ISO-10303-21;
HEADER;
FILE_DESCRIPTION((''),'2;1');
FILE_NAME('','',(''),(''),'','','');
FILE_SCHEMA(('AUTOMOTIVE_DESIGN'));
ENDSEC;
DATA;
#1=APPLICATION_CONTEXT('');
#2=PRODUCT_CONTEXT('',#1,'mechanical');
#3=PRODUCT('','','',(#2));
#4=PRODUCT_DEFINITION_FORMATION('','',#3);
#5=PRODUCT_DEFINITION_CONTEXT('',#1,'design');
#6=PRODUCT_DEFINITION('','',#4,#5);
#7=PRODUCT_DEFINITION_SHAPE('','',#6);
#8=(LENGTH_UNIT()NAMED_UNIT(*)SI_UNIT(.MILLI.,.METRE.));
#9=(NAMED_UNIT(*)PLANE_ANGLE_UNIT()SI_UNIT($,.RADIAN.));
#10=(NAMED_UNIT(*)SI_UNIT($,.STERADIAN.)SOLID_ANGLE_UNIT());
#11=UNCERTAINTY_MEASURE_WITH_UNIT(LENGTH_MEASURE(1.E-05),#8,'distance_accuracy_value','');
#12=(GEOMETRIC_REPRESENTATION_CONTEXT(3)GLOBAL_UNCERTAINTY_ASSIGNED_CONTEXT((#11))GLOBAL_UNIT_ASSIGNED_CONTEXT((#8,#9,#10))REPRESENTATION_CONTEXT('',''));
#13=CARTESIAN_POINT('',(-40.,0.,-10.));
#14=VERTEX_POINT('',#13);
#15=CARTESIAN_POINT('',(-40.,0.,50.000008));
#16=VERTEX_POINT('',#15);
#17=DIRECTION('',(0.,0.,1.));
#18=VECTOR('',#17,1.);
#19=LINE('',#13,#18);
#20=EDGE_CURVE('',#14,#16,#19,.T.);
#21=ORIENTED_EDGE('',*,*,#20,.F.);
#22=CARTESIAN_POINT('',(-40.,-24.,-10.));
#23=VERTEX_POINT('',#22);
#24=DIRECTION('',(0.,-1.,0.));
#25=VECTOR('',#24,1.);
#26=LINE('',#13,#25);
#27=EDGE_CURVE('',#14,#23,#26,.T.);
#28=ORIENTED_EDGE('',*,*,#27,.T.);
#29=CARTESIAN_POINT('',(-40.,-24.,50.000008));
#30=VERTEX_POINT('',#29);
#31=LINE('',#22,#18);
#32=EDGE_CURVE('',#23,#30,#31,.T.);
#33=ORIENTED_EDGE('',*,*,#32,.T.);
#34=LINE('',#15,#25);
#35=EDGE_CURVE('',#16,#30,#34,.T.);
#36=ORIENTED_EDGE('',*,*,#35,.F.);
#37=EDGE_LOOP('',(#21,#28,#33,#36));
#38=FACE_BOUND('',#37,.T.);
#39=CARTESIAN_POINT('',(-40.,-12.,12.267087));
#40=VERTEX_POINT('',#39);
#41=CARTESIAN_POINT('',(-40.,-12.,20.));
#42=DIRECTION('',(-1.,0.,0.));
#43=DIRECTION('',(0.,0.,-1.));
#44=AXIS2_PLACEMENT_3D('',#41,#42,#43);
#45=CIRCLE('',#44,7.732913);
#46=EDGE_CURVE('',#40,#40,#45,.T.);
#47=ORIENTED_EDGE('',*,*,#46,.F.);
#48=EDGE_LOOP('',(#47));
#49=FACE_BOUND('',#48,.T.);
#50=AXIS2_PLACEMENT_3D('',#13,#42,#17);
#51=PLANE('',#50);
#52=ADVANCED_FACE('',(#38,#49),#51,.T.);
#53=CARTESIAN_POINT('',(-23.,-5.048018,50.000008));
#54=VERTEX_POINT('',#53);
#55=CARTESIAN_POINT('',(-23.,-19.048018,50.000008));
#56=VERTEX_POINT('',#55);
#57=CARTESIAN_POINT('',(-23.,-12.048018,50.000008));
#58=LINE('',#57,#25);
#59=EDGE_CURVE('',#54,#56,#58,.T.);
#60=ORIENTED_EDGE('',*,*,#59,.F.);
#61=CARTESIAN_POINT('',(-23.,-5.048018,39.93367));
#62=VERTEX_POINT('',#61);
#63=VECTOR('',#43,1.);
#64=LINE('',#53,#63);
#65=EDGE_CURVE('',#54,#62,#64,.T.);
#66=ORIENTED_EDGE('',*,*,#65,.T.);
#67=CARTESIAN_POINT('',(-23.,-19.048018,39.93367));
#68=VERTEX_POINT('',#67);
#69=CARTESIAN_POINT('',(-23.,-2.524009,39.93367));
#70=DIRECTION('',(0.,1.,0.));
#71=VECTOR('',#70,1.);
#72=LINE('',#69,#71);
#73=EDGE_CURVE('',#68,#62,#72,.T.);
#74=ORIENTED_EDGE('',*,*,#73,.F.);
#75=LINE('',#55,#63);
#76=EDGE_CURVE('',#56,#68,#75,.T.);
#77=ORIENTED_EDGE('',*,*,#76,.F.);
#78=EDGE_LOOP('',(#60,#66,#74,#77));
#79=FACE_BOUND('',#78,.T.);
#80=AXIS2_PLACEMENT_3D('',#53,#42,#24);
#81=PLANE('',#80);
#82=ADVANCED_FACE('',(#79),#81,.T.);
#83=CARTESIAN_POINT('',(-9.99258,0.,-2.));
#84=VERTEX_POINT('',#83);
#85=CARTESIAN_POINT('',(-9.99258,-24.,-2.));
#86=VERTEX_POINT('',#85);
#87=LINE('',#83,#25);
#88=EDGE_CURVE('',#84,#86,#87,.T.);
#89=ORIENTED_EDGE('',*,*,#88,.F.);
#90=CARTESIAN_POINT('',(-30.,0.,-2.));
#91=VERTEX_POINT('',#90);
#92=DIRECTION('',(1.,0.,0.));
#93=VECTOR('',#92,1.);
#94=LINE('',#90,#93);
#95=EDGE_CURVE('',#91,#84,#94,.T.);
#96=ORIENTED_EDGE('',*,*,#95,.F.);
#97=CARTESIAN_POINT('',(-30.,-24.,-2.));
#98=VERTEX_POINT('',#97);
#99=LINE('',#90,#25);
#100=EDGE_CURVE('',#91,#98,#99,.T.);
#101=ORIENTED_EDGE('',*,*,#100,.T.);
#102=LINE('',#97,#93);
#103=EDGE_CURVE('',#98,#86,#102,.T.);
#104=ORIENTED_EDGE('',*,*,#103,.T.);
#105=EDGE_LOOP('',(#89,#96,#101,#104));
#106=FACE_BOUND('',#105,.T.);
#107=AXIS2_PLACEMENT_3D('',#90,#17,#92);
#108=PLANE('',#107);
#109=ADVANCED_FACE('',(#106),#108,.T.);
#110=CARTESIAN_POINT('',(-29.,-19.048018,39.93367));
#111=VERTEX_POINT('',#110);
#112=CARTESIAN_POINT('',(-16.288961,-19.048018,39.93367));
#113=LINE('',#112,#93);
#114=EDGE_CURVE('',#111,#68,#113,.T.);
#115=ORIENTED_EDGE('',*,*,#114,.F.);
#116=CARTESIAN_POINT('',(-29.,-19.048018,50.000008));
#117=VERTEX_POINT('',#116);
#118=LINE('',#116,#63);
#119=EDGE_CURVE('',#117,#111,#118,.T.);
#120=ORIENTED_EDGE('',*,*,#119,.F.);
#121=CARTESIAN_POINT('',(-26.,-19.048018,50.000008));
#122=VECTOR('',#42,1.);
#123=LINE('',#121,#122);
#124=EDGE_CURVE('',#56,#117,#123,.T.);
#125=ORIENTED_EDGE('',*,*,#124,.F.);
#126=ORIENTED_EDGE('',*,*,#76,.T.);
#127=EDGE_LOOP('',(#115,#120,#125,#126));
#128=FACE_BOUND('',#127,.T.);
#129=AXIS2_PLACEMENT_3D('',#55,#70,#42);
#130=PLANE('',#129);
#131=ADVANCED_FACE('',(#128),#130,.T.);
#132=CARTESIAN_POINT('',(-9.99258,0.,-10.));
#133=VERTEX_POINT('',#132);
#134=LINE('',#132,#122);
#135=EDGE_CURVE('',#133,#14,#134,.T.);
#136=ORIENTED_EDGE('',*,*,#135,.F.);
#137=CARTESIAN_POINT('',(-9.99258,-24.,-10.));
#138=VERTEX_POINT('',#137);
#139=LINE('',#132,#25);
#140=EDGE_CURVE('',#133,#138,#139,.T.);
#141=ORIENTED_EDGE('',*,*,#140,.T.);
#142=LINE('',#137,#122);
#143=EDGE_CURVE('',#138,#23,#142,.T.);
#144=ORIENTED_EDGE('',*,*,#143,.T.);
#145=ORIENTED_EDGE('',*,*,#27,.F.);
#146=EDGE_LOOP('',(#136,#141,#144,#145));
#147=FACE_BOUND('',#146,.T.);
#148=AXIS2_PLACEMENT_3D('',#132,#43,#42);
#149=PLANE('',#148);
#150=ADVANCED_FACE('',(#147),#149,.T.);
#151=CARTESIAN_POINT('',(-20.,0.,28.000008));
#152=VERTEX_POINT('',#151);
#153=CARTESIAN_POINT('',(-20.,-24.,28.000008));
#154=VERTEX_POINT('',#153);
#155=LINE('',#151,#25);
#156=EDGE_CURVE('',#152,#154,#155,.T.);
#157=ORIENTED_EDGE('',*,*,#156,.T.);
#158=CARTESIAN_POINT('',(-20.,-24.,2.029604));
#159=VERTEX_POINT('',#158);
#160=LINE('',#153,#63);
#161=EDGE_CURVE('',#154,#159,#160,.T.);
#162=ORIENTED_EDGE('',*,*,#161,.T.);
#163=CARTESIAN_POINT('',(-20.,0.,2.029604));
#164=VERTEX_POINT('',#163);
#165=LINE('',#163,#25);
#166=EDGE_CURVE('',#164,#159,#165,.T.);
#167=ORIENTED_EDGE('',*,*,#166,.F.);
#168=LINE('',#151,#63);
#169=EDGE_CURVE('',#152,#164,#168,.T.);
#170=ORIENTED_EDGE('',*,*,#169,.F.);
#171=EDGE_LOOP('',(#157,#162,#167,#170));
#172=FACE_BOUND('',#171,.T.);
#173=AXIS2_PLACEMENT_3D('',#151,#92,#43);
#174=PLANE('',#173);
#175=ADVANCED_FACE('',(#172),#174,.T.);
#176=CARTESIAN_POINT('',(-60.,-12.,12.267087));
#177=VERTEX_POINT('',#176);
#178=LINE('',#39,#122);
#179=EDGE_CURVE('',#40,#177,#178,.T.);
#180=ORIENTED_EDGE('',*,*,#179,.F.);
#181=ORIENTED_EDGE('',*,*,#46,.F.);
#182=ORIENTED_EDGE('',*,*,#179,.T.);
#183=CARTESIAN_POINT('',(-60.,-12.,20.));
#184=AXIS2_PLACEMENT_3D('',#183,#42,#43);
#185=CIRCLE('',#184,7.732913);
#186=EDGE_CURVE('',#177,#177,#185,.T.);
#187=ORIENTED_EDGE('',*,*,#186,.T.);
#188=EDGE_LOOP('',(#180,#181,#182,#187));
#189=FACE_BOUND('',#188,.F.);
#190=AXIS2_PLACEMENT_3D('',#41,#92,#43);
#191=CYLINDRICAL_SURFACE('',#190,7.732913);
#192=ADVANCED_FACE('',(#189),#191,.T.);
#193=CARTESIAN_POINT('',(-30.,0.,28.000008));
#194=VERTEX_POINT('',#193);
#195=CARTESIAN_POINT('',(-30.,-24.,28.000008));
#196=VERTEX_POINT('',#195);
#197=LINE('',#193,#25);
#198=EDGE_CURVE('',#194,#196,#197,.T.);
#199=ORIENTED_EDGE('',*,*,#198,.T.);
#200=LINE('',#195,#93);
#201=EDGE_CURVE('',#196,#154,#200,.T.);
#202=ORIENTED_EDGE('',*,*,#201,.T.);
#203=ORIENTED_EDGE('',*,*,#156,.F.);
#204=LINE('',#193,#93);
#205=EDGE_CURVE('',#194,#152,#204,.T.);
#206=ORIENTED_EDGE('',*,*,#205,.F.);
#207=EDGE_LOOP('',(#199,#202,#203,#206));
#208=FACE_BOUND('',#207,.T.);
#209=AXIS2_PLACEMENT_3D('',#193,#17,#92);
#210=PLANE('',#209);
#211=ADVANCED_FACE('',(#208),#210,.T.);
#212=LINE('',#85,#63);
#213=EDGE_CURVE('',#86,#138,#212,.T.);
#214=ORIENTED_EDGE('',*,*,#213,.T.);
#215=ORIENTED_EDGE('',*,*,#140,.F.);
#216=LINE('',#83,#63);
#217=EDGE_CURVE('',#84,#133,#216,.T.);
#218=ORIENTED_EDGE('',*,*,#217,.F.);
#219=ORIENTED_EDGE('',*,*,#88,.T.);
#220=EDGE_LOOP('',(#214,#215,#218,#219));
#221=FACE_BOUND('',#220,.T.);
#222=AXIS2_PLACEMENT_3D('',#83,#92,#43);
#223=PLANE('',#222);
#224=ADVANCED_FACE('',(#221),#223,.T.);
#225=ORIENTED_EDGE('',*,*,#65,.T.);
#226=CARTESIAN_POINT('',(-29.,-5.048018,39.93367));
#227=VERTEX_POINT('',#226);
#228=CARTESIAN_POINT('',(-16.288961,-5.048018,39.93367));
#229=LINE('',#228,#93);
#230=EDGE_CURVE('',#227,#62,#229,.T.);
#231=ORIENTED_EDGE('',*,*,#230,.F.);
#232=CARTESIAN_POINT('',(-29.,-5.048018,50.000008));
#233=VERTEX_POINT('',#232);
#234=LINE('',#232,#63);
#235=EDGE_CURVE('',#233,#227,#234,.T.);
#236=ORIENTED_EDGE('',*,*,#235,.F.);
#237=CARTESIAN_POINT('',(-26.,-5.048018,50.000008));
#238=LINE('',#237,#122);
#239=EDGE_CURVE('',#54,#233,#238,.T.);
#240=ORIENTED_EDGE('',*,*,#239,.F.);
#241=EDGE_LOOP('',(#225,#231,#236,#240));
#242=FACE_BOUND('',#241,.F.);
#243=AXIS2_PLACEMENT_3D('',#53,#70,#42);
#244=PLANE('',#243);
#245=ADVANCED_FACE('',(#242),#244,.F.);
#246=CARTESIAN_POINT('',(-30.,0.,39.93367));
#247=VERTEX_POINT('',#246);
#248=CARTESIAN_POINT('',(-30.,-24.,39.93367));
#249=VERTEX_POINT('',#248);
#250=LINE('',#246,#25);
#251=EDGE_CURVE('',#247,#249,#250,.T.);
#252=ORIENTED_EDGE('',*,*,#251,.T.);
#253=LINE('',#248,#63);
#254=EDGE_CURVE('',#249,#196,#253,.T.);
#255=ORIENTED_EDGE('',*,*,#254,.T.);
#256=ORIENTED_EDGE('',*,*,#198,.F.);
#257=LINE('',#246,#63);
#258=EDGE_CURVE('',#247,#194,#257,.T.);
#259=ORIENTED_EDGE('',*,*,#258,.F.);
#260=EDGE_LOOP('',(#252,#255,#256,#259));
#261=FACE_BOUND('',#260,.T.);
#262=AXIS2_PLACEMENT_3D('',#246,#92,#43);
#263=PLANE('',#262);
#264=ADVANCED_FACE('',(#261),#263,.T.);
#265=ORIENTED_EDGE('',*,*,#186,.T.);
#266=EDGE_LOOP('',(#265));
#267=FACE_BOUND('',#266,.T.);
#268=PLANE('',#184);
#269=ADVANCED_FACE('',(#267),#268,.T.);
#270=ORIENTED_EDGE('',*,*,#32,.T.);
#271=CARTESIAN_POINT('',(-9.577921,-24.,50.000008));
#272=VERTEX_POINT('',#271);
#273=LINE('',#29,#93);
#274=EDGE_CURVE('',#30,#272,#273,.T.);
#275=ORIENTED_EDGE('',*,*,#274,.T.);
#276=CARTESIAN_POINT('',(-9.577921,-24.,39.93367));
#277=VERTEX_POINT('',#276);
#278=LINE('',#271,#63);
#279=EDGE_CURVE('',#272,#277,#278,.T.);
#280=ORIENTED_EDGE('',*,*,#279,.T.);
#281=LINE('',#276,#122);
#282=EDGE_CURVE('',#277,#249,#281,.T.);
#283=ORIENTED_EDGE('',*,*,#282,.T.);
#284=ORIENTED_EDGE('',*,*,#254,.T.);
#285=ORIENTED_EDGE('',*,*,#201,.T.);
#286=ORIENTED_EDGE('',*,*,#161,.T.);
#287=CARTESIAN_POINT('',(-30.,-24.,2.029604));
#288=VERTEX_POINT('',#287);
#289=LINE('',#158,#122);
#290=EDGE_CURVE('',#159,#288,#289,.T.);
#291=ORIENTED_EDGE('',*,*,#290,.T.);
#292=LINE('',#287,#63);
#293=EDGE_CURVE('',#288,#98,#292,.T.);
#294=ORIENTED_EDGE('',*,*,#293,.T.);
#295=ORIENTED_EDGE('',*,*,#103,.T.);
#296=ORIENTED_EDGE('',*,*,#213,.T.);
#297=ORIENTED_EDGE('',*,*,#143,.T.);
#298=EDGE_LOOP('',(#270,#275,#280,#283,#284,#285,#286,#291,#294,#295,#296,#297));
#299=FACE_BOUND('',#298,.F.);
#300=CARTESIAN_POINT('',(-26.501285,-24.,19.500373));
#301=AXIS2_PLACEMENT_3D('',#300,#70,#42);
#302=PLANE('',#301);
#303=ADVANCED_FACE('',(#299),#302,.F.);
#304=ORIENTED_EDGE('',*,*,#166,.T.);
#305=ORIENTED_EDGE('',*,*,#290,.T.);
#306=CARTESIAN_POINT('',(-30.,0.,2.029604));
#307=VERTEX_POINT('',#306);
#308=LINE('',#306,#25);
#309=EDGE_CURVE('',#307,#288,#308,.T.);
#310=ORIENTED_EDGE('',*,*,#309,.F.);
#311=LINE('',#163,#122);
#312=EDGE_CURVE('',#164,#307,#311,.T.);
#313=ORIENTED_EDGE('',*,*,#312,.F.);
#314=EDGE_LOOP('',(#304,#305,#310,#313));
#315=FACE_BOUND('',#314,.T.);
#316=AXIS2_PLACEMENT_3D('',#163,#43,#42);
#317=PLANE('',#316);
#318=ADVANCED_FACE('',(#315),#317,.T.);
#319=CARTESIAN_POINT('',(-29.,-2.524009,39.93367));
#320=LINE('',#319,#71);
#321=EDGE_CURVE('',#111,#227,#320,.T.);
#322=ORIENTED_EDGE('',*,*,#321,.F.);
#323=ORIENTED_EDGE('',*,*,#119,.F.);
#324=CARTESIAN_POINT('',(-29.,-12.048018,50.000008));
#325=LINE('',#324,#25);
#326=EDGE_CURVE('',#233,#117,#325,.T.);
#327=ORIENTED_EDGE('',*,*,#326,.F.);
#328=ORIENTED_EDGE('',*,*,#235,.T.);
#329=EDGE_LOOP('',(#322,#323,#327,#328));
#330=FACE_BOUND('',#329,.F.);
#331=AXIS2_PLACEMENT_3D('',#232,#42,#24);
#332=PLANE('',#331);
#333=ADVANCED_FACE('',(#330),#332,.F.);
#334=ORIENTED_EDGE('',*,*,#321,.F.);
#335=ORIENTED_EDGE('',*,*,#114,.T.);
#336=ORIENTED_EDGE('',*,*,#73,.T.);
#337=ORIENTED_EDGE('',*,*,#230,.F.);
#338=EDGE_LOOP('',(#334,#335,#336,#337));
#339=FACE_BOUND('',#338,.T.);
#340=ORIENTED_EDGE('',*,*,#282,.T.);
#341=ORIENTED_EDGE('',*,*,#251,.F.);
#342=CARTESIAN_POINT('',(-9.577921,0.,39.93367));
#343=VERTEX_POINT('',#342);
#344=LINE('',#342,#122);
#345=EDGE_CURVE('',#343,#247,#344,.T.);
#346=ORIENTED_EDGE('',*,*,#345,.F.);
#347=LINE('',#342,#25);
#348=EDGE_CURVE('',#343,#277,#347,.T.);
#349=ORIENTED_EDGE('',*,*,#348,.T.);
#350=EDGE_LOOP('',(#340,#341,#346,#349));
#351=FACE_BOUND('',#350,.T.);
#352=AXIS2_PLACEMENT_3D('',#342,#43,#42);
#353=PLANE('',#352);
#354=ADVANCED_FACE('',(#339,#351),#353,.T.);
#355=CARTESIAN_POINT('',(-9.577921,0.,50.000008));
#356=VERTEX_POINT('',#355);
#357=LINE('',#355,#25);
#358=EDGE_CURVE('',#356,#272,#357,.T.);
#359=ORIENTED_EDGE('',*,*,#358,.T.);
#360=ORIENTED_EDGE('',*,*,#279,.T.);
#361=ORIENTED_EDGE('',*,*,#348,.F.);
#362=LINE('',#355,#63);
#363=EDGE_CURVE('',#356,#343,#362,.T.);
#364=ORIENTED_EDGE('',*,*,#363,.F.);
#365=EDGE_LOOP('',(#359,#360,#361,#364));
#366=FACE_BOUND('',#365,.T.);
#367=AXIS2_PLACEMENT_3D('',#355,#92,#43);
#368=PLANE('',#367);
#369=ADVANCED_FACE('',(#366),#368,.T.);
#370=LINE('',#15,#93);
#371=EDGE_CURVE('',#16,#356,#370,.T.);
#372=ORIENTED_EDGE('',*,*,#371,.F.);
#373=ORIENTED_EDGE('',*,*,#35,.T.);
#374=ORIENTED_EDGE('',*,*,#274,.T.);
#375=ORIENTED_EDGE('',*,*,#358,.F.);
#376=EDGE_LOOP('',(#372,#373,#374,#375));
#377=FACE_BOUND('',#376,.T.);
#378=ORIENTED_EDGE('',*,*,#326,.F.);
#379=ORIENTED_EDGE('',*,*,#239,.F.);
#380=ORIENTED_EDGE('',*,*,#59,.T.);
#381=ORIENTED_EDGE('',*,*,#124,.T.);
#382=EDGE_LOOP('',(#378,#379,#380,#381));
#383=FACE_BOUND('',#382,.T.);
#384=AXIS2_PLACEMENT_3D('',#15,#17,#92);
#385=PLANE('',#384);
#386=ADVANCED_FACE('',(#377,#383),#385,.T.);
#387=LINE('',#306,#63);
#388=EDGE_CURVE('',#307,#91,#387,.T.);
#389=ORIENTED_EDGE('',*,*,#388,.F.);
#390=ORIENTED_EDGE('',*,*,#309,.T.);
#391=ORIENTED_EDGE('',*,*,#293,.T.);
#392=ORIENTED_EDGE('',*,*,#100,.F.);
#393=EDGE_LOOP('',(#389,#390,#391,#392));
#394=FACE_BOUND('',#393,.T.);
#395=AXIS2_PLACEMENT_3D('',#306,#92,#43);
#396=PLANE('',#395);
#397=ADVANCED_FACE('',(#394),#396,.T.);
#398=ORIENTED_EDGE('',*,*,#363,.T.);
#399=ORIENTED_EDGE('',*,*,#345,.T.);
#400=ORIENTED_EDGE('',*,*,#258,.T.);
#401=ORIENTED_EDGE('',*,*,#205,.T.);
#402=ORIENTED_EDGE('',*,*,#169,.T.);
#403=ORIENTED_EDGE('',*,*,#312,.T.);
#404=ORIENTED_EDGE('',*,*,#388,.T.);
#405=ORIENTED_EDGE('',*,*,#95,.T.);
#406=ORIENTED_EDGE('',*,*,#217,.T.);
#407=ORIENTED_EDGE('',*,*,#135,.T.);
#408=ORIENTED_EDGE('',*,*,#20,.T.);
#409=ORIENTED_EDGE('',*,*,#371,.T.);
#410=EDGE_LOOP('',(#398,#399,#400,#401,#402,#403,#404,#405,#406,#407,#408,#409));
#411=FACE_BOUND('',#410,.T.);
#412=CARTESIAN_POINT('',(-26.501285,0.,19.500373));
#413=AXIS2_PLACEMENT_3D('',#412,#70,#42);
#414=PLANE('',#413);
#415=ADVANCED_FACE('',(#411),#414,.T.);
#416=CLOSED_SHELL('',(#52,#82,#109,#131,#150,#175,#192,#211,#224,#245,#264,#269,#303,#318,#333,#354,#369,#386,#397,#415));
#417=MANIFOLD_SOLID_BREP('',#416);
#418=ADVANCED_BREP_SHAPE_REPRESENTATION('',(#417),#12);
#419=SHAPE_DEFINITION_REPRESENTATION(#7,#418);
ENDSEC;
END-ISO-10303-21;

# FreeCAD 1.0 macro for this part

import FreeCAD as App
import Part
import Sketcher
Q = App.Units.Quantity

doc = App.newDocument("Part")
body = doc.addObject("PartDesign::Body", "Body")

sketch1 = body.newObject("Sketcher::SketchObject", "Sketch")
sketch1.AttachmentSupport = (doc.getObject("XZ_Plane"), [""])
sketch1.MapMode = "FlatFace"
sketch1.addGeometry(Part.LineSegment(App.Vector(-30, 39.9, 0), App.Vector(-9.6, 39.9, 0)), False)
sketch1.addGeometry(Part.LineSegment(App.Vector(-9.6, 39.9, 0), App.Vector(-9.6, 50, 0)), False)
sketch1.addGeometry(Part.LineSegment(App.Vector(-9.6, 50, 0), App.Vector(-40, 50, 0)), False)
sketch1.addGeometry(Part.LineSegment(App.Vector(-40, 50, 0), App.Vector(-40, -10, 0)), False)
sketch1.addGeometry(Part.LineSegment(App.Vector(-40, -10, 0), App.Vector(-10, -10, 0)), False)
sketch1.addGeometry(Part.LineSegment(App.Vector(-10, -10, 0), App.Vector(-10, -2, 0)), False)
sketch1.addGeometry(Part.LineSegment(App.Vector(-10, -2, 0), App.Vector(-30, -2, 0)), False)
sketch1.addGeometry(Part.LineSegment(App.Vector(-30, -2, 0), App.Vector(-30, 2, 0)), False)
sketch1.addGeometry(Part.LineSegment(App.Vector(-30, 2, 0), App.Vector(-20, 2, 0)), False)
sketch1.addGeometry(Part.LineSegment(App.Vector(-20, 2, 0), App.Vector(-20, 28, 0)), False)
sketch1.addGeometry(Part.LineSegment(App.Vector(-20, 28, 0), App.Vector(-30, 28, 0)), False)
sketch1.addGeometry(Part.LineSegment(App.Vector(-30, 28, 0), App.Vector(-30, 39.9, 0)), False)
sketch1.addConstraint(Sketcher.Constraint("Coincident", 0, 2, 1, 1))
sketch1.addConstraint(Sketcher.Constraint("Coincident", 1, 2, 2, 1))
sketch1.addConstraint(Sketcher.Constraint("Coincident", 2, 2, 3, 1))
sketch1.addConstraint(Sketcher.Constraint("Coincident", 3, 2, 4, 1))
sketch1.addConstraint(Sketcher.Constraint("Coincident", 4, 2, 5, 1))
sketch1.addConstraint(Sketcher.Constraint("Coincident", 5, 2, 6, 1))
sketch1.addConstraint(Sketcher.Constraint("Coincident", 6, 2, 7, 1))
sketch1.addConstraint(Sketcher.Constraint("Coincident", 7, 2, 8, 1))
sketch1.addConstraint(Sketcher.Constraint("Coincident", 8, 2, 9, 1))
sketch1.addConstraint(Sketcher.Constraint("Coincident", 9, 2, 10, 1))
sketch1.addConstraint(Sketcher.Constraint("Coincident", 10, 2, 11, 1))
sketch1.addConstraint(Sketcher.Constraint("Coincident", 11, 2, 0, 1))
sketch1.addConstraint(Sketcher.Constraint("Horizontal", 0))
sketch1.addConstraint(Sketcher.Constraint("Vertical", 1))
sketch1.addConstraint(Sketcher.Constraint("Horizontal", 2))
sketch1.addConstraint(Sketcher.Constraint("Vertical", 3))
sketch1.addConstraint(Sketcher.Constraint("Horizontal", 4))
sketch1.addConstraint(Sketcher.Constraint("Vertical", 5))
sketch1.addConstraint(Sketcher.Constraint("Horizontal", 6))
sketch1.addConstraint(Sketcher.Constraint("Vertical", 7))
sketch1.addConstraint(Sketcher.Constraint("Horizontal", 8))
sketch1.addConstraint(Sketcher.Constraint("Vertical", 9))
sketch1.addConstraint(Sketcher.Constraint("Horizontal", 10))
sketch1.addConstraint(Sketcher.Constraint("Vertical", 11))
sketch1.addConstraint(Sketcher.Constraint("Vertical", 7, 2, 10, 2))
sketch1.addConstraint(Sketcher.Constraint("DistanceX", 8, 1, 8, 2, Q("10 mm")))
sketch1.addConstraint(Sketcher.Constraint("DistanceY", 5, 1, 5, 2, Q("8 mm")))
sketch1.addConstraint(Sketcher.Constraint("DistanceX", 2, 2, -1, 1, Q("40 mm")))
sketch1.addConstraint(Sketcher.Constraint("DistanceY", 3, 2, -1, 1, Q("10 mm")))
sketch1.addConstraint(Sketcher.Constraint("DistanceX", 6, 2, -1, 1, Q("30 mm")))
sketch1.addConstraint(Sketcher.Constraint("DistanceY", 9, 2, 1, 2, Q("22 mm")))
sketch1.addConstraint(Sketcher.Constraint("DistanceX", 0, 1, 0, 2, Q("20.422079 mm")))
sketch1.addConstraint(Sketcher.Constraint("DistanceX", 4, 1, 4, 2, Q("30.00742 mm")))
sketch1.addConstraint(Sketcher.Constraint("DistanceY", 1, 1, 1, 2, Q("10.066338 mm")))
sketch1.addConstraint(Sketcher.Constraint("DistanceY", 3, 2, 3, 1, Q("60.000008 mm")))
sketch1.addConstraint(Sketcher.Constraint("DistanceY", 7, 1, 7, 2, Q("4.029604 mm")))
pad1 = body.newObject("PartDesign::Pad", "Pad")
pad1.Profile = sketch1
pad1.Length = 24

sketch2 = body.newObject("Sketcher::SketchObject", "Sketch001")
sketch2.AttachmentSupport = (doc.getObject("YZ_Plane"), [""])
sketch2.MapMode = "FlatFace"
sketch2.AttachmentOffset = App.Placement(App.Vector(0, 0, -40), App.Rotation())
sketch2.addGeometry(Part.Circle(App.Vector(-12, 20, 0), App.Vector(0, 0, 1), 8), False)
sketch2.addConstraint(Sketcher.Constraint("DistanceX", 0, 3, -1, 1, Q("12 mm")))
sketch2.addConstraint(Sketcher.Constraint("DistanceY", -1, 1, 0, 3, Q("20 mm")))
sketch2.addConstraint(Sketcher.Constraint("Diameter", 0, Q("15.465826 mm")))
pad2 = body.newObject("PartDesign::Pad", "Pad001")
pad2.Profile = sketch2
pad2.Length = 20
pad2.Reversed = True

sketch3 = body.newObject("Sketcher::SketchObject", "Sketch002")
sketch3.AttachmentSupport = (doc.getObject("XY_Plane"), [""])
sketch3.MapMode = "FlatFace"
sketch3.AttachmentOffset = App.Placement(App.Vector(0, 0, 50.000008), App.Rotation())
sketch3.addGeometry(Part.LineSegment(App.Vector(-23, -19, 0), App.Vector(-23, -5, 0)), False)
sketch3.addGeometry(Part.LineSegment(App.Vector(-23, -5, 0), App.Vector(-29, -5, 0)), False)
sketch3.addGeometry(Part.LineSegment(App.Vector(-29, -5, 0), App.Vector(-29, -19, 0)), False)
sketch3.addGeometry(Part.LineSegment(App.Vector(-29, -19, 0), App.Vector(-23, -19, 0)), False)
sketch3.addConstraint(Sketcher.Constraint("Coincident", 0, 2, 1, 1))
sketch3.addConstraint(Sketcher.Constraint("Coincident", 1, 2, 2, 1))
sketch3.addConstraint(Sketcher.Constraint("Coincident", 2, 2, 3, 1))
sketch3.addConstraint(Sketcher.Constraint("Coincident", 3, 2, 0, 1))
sketch3.addConstraint(Sketcher.Constraint("Vertical", 0))
sketch3.addConstraint(Sketcher.Constraint("Horizontal", 1))
sketch3.addConstraint(Sketcher.Constraint("Vertical", 2))
sketch3.addConstraint(Sketcher.Constraint("Horizontal", 3))
sketch3.addConstraint(Sketcher.Constraint("DistanceX", 1, 2, 1, 1, Q("6 mm")))
sketch3.addConstraint(Sketcher.Constraint("DistanceY", 0, 1, 0, 2, Q("14 mm")))
sketch3.addConstraint(Sketcher.Constraint("DistanceX", 0, 2, -1, 1, Q("23 mm")))
sketch3.addConstraint(Sketcher.Constraint("DistanceY", 0, 2, -1, 1, Q("5.048018 mm")))
pocket1 = body.newObject("PartDesign::Pocket", "Pocket")
pocket1.Profile = sketch3
pocket1.Length = 11

doc.recompute()
